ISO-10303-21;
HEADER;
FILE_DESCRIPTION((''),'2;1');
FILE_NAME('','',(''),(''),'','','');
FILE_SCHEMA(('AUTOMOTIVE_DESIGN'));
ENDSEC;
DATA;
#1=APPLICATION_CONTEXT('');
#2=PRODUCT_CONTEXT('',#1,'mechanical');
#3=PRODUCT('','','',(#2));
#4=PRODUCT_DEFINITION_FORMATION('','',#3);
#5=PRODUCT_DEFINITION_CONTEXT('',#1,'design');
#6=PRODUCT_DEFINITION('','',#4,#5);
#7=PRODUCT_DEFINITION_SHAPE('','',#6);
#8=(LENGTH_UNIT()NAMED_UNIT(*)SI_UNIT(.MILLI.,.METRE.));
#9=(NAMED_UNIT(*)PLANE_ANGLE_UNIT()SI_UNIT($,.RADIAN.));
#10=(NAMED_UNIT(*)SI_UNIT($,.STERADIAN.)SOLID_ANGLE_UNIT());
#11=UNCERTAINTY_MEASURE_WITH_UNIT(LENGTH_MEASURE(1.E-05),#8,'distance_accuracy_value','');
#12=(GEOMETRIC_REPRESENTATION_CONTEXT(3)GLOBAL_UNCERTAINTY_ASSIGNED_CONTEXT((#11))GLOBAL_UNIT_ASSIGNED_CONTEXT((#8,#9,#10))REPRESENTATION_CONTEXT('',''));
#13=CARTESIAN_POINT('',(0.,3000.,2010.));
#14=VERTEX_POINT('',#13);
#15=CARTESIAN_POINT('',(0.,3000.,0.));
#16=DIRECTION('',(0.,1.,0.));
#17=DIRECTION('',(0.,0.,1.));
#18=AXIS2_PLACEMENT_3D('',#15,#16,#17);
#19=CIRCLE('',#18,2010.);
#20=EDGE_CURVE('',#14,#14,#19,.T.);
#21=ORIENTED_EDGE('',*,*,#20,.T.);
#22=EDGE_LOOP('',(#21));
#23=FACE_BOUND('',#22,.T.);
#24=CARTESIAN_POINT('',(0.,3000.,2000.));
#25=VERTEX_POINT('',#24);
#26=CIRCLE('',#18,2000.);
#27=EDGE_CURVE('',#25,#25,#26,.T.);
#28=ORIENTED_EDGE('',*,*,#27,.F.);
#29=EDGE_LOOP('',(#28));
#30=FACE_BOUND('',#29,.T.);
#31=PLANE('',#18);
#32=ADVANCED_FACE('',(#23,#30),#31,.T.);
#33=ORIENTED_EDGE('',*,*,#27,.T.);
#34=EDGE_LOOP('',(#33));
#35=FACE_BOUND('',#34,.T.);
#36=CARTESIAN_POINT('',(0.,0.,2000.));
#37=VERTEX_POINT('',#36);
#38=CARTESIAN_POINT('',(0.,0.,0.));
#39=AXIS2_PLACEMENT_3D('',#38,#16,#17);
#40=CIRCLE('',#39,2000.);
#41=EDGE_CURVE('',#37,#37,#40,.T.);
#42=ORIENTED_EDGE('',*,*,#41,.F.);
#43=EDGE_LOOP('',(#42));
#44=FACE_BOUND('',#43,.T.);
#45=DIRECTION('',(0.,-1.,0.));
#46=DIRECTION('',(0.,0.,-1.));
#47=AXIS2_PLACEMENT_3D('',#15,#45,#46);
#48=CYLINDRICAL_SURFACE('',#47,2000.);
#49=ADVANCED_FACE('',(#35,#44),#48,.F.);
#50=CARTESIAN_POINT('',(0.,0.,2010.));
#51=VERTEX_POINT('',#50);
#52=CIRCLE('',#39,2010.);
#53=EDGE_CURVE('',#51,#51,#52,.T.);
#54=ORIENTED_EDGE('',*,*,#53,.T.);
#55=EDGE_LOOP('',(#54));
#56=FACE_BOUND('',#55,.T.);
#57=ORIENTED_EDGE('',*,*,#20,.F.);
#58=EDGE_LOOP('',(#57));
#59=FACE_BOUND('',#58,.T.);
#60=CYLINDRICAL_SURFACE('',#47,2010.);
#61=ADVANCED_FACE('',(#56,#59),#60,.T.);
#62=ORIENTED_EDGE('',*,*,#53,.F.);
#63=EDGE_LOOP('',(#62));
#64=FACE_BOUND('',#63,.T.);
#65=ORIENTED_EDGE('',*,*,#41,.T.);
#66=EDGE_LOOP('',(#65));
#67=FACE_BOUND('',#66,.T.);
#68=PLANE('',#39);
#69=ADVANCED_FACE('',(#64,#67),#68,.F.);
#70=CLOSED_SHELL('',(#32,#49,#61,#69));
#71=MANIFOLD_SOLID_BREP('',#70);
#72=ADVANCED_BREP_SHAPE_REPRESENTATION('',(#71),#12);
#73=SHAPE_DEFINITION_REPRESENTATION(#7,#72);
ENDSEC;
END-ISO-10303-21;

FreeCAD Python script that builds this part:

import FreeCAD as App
import Part
import Sketcher

V = App.Vector

doc = App.newDocument("Part")
body = doc.addObject("PartDesign::Body", "Body")

sketch1 = body.newObject("Sketcher::SketchObject", "Sketch")
sketch1.AttachmentSupport = (doc.getObject("XZ_Plane"), [""])
sketch1.MapMode = "FlatFace"
sketch1.addGeometry(Part.Circle(V(0, 0, 0), V(0, 0, 1), 2010), False)
sketch1.addGeometry(Part.Circle(V(0, 0, 0), V(0, 0, 1), 2000), False)
sketch1.addConstraint(Sketcher.Constraint("Coincident", 0, 3, -1, 1))
sketch1.addConstraint(Sketcher.Constraint("Coincident", 1, 3, -1, 1))
sketch1.addConstraint(Sketcher.Constraint("Diameter", 0, 4020.0))
sketch1.addConstraint(Sketcher.Constraint("Diameter", 1, 4000.0))
pad1 = body.newObject("PartDesign::Pad", "Pad")
pad1.Profile = sketch1
pad1.Length = 3000
pad1.Reversed = True

doc.recompute()
